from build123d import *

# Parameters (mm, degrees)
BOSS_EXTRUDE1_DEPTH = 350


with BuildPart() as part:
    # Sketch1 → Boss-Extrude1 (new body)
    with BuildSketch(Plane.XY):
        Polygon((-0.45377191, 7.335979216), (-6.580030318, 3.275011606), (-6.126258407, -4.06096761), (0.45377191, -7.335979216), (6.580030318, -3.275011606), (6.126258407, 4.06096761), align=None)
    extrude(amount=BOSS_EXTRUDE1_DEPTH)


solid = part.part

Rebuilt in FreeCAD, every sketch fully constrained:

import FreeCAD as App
import Part
import Sketcher
from FreeCAD import Vector


def add_polygon(sketch, points):
    """Adds a closed chain of lines whose ends are joined by coincident constraints."""
    first, n = sketch.GeometryCount, len(points)
    for a, b in zip(points, points[1:] + points[:1]):
        sketch.addGeometry(Part.LineSegment(App.Vector(*a, 0), App.Vector(*b, 0)), False)
    for i in range(n):
        sketch.addConstraint(Sketcher.Constraint("Coincident", first + i, 2, first + (i + 1) % n, 1))

doc = App.newDocument("Part")
body = doc.addObject("PartDesign::Body", "Body")

sketch1 = body.newObject("Sketcher::SketchObject", "Sketch")
sketch1.AttachmentSupport = (doc.getObject("XY_Plane"), [""])
sketch1.MapMode = "FlatFace"
add_polygon(sketch1, [(-0.453772, 7.335979), (-6.58003, 3.275012), (-6.126258, -4.060968), (0.453772, -7.335979), (6.58003, -3.275012), (6.126258, 4.060968)])
sketch1.addConstraint([
    Sketcher.Constraint("Symmetric", 0, 2, 3, 2, -1, 1),
    Sketcher.Constraint("Symmetric", 1, 2, 4, 2, -1, 1),
    Sketcher.Constraint("Symmetric", 2, 2, 5, 2, -1, 1),
    Sketcher.Constraint("Equal", 0, 1),
    Sketcher.Constraint("Equal", 1, 2),
    Sketcher.Constraint("Distance", 0, 7.35),
    Sketcher.Constraint("DistanceX", 0, 2, -1, 1, 6.58003),
    Sketcher.Constraint("DistanceY", -1, 1, 0, 2, 3.275012),
    Sketcher.Constraint("DistanceX", 1, 2, -1, 1, 6.126258),
])
pad1 = body.newObject("PartDesign::Pad", "Pad")
pad1.Profile = sketch1
pad1.Length = 350

doc.recompute()
